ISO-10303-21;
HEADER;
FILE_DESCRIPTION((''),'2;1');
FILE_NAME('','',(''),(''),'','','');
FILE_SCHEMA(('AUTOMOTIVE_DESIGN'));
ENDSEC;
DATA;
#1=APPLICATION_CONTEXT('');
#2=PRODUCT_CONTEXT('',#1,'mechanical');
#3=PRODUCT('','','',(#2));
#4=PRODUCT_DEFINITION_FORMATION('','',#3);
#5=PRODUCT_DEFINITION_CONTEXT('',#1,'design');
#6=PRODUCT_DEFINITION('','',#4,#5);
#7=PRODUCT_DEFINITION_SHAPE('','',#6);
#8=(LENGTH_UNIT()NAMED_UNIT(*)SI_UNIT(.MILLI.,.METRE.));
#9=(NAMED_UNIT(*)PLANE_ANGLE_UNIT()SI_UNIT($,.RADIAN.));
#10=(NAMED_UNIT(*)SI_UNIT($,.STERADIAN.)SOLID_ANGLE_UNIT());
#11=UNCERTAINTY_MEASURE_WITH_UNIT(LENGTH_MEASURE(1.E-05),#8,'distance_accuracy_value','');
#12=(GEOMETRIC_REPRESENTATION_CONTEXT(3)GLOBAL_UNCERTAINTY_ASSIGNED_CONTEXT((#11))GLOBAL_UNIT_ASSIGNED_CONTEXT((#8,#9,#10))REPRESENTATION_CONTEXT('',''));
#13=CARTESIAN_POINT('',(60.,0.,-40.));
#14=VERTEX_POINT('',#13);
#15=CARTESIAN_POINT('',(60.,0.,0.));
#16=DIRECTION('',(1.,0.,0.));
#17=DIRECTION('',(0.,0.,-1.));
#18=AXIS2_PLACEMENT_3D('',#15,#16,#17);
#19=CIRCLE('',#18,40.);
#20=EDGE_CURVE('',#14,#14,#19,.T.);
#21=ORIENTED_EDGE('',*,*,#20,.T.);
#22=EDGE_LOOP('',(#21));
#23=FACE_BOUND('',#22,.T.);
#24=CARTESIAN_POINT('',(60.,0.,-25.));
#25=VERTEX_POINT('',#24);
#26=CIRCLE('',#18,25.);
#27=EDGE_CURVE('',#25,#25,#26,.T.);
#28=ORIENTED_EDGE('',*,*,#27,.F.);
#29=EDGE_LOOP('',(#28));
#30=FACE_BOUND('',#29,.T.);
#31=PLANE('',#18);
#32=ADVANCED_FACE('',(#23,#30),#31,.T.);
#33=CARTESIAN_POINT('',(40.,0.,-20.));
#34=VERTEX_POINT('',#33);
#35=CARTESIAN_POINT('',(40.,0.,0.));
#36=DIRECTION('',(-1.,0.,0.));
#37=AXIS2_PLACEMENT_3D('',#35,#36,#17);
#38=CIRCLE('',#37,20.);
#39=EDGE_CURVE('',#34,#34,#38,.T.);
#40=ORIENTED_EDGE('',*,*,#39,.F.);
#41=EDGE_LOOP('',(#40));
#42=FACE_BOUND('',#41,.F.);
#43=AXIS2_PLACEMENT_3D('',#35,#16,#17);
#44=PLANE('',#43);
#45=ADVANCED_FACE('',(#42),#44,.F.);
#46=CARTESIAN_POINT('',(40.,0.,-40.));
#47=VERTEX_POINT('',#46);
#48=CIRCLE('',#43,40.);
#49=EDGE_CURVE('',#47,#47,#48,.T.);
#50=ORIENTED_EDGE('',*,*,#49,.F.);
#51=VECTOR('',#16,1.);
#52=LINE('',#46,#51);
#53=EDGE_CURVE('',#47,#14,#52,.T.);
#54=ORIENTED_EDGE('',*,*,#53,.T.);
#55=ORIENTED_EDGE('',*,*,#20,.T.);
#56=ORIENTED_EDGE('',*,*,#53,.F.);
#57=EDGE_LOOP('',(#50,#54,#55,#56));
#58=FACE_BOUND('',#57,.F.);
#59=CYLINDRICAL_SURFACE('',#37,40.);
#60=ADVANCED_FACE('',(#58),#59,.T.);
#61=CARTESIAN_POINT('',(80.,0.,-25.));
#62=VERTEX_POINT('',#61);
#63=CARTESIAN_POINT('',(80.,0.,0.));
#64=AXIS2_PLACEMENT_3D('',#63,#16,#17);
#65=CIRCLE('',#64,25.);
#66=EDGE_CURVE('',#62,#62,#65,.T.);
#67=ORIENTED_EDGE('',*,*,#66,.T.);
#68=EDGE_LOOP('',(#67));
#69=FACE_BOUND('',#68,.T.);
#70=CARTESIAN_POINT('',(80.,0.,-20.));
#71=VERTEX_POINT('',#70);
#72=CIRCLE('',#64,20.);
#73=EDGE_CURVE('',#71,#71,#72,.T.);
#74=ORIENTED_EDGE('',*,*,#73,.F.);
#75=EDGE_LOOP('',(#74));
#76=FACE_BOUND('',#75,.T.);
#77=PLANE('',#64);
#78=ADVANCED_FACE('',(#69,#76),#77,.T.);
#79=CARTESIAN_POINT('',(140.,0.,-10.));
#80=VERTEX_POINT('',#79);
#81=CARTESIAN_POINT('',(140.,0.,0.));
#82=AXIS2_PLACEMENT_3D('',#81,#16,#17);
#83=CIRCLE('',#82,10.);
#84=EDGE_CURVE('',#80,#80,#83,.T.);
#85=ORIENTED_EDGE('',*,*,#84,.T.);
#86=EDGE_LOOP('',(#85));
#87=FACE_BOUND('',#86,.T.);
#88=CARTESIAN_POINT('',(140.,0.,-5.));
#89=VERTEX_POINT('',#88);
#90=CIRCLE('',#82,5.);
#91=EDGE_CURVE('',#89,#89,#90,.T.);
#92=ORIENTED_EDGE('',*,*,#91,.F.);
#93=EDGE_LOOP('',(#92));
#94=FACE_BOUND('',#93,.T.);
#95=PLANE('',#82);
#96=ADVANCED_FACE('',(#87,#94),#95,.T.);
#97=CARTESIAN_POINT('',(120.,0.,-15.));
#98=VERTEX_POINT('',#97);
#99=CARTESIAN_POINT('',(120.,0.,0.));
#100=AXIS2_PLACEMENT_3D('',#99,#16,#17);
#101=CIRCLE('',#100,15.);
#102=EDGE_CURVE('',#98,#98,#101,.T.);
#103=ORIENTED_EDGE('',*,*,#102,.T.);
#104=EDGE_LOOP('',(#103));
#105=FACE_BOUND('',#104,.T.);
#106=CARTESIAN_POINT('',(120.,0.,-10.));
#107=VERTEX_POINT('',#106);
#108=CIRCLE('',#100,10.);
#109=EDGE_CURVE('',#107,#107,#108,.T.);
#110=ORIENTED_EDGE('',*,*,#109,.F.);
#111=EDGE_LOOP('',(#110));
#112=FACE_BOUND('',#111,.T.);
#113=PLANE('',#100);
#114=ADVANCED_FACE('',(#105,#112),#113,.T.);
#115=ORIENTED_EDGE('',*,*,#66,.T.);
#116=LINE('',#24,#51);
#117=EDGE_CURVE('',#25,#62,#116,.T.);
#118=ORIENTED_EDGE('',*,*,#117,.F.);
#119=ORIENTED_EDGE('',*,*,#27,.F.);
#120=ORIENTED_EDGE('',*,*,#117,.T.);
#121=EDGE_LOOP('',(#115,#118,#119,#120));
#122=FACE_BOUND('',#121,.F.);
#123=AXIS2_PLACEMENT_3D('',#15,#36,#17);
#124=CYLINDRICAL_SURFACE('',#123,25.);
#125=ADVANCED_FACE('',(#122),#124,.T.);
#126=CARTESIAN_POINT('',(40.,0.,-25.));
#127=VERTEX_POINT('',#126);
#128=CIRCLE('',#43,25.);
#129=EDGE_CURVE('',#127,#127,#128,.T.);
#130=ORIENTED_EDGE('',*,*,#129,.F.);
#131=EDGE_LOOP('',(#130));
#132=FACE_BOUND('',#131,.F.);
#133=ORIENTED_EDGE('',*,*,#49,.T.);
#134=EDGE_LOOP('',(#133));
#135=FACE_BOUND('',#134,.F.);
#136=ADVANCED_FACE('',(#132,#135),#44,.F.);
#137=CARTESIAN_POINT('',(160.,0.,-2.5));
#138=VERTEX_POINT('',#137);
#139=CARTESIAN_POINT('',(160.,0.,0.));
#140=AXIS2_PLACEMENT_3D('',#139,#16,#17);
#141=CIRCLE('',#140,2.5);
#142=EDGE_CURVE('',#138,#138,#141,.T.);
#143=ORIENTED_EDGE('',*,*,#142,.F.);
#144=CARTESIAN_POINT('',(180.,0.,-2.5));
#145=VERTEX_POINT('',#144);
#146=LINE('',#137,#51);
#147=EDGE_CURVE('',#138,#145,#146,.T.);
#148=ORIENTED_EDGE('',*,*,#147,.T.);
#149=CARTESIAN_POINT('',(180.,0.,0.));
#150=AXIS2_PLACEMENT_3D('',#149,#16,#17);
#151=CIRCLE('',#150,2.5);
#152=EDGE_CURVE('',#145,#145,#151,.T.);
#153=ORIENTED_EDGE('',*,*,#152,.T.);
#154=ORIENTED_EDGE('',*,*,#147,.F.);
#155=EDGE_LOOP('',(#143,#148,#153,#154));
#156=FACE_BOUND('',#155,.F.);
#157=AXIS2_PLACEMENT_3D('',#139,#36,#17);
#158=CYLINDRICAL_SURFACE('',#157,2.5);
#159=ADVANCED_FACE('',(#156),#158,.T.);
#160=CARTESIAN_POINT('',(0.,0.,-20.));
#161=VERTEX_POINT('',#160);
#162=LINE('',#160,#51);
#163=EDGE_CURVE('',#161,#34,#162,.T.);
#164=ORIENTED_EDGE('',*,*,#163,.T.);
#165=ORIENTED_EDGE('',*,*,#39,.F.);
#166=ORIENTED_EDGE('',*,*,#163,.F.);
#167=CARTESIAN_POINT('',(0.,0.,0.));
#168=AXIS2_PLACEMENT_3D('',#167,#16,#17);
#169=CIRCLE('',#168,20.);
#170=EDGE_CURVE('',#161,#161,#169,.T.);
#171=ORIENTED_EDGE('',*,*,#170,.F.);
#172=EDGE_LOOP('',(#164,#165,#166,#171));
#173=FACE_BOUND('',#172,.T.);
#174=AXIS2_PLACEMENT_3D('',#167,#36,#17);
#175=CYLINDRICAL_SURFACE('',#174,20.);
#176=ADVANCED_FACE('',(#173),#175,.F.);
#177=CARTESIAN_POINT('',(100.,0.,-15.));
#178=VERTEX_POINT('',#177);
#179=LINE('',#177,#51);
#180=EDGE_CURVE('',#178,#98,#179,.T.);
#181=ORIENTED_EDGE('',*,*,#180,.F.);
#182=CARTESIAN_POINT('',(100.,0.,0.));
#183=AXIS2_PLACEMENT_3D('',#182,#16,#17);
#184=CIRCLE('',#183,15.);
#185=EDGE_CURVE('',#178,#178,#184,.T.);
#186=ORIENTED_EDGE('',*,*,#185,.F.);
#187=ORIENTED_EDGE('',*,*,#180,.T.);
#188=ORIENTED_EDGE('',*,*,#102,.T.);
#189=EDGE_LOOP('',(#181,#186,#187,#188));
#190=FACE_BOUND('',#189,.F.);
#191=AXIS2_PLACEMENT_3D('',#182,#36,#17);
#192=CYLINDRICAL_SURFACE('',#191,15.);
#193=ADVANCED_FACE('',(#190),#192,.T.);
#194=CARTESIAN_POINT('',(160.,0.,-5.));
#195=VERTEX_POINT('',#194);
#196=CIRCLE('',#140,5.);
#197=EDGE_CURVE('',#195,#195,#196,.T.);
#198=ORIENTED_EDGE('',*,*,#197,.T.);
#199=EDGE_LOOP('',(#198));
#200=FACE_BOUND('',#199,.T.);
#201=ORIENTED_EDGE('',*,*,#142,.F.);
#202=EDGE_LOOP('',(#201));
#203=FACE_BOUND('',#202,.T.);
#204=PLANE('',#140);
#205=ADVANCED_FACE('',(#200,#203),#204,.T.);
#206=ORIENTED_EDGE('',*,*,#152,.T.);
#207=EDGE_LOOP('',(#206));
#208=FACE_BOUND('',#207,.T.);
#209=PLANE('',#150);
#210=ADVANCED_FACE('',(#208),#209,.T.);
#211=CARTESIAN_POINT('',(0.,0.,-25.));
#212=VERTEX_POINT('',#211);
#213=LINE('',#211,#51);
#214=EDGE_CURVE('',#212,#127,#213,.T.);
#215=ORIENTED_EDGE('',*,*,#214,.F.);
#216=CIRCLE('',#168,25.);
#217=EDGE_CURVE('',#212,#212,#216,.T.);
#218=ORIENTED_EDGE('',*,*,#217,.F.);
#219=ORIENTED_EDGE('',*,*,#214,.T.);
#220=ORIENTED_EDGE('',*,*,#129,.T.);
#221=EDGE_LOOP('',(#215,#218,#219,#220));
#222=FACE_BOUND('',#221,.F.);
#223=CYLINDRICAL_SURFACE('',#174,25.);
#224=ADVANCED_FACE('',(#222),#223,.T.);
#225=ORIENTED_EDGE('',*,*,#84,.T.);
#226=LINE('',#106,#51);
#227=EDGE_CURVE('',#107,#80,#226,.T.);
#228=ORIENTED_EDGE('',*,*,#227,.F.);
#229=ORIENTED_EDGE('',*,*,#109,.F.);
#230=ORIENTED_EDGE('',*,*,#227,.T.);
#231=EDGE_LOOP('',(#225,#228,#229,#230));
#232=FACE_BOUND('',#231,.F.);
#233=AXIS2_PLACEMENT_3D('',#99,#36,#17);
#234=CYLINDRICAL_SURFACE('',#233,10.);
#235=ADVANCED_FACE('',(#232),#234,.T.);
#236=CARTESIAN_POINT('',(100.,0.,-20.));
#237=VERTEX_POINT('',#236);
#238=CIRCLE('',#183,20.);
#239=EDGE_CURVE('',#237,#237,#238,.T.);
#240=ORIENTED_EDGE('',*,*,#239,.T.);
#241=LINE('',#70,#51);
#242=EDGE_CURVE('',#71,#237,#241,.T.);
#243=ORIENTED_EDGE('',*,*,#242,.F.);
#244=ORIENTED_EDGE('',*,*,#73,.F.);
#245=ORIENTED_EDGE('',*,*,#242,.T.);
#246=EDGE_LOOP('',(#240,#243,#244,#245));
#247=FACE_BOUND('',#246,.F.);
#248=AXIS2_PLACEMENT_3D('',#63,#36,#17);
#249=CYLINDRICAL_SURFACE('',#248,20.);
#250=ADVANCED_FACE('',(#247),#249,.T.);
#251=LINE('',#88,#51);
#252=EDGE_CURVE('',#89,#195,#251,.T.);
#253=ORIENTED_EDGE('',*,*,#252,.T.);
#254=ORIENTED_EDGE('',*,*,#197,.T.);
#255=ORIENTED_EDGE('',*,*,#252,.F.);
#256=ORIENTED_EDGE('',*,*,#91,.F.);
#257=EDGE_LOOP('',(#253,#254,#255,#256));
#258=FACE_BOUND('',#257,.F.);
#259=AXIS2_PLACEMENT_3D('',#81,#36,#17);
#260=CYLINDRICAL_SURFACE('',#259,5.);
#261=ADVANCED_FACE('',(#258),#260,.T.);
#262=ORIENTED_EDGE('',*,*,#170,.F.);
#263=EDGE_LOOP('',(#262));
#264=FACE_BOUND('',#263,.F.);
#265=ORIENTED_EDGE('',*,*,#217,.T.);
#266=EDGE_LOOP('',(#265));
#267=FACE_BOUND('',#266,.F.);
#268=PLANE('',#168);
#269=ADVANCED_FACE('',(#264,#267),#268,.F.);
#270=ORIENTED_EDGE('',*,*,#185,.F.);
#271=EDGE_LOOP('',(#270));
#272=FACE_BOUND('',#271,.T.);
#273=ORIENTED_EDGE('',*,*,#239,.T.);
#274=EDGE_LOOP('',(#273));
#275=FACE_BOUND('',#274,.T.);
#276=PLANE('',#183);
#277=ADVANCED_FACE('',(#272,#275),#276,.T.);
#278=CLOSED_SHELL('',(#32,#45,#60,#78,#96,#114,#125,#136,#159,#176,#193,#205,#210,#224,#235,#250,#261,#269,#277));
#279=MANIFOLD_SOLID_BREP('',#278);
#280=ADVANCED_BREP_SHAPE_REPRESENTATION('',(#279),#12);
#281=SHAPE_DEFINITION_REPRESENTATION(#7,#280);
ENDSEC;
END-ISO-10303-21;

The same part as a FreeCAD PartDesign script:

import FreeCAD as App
import Part
import Sketcher
from FreeCAD import Vector

doc = App.newDocument("Part")
body = doc.addObject("PartDesign::Body", "Body")

sketch1 = body.newObject("Sketcher::SketchObject", "Sketch")
sketch1.AttachmentSupport = (doc.getObject("YZ_Plane"), [""])
sketch1.MapMode = "FlatFace"
sketch1.addGeometry(Part.Circle(Vector(0, 0, 0), Vector(0, 0, 1), 25), False)
sketch1.addConstraint(Sketcher.Constraint("Coincident", 0, 3, -1, 1))
sketch1.addConstraint(Sketcher.Constraint("Diameter", 0, 50.0))
pad1 = body.newObject("PartDesign::Pad", "Pad")
pad1.Profile = sketch1
pad1.Length = 40

sketch2 = body.newObject("Sketcher::SketchObject", "Sketch001")
sketch2.AttachmentSupport = (doc.getObject("YZ_Plane"), [""])
sketch2.MapMode = "FlatFace"
sketch2.addGeometry(Part.Circle(Vector(0, 0, 0), Vector(0, 0, 1), 20), False)
sketch2.addConstraint(Sketcher.Constraint("Coincident", 0, 3, -1, 1))
sketch2.addConstraint(Sketcher.Constraint("Diameter", 0, 40.0))
pocket1 = body.newObject("PartDesign::Pocket", "Pocket")
pocket1.Profile = sketch2
pocket1.Length = 70
pocket1.Reversed = True

sketch3 = body.newObject("Sketcher::SketchObject", "Sketch002")
sketch3.AttachmentSupport = (doc.getObject("YZ_Plane"), [""])
sketch3.MapMode = "FlatFace"
sketch3.AttachmentOffset = App.Placement(Vector(0, 0, 40), App.Rotation())
sketch3.addGeometry(Part.Circle(Vector(0, 0, 0), Vector(0, 0, 1), 40), False)
sketch3.addConstraint(Sketcher.Constraint("Coincident", 0, 3, -1, 1))
sketch3.addConstraint(Sketcher.Constraint("Diameter", 0, 80.0))
pad2 = body.newObject("PartDesign::Pad", "Pad001")
pad2.Profile = sketch3
pad2.Length = 20

sketch4 = body.newObject("Sketcher::SketchObject", "Sketch003")
sketch4.AttachmentSupport = (doc.getObject("YZ_Plane"), [""])
sketch4.MapMode = "FlatFace"
sketch4.AttachmentOffset = App.Placement(Vector(0, 0, 60), App.Rotation())
sketch4.addGeometry(Part.Circle(Vector(0, 0, 0), Vector(0, 0, 1), 25), False)
sketch4.addConstraint(Sketcher.Constraint("Coincident", 0, 3, -1, 1))
sketch4.addConstraint(Sketcher.Constraint("Diameter", 0, 50.0))
pad3 = body.newObject("PartDesign::Pad", "Pad002")
pad3.Profile = sketch4
pad3.Length = 20

sketch5 = body.newObject("Sketcher::SketchObject", "Sketch004")
sketch5.AttachmentSupport = (doc.getObject("YZ_Plane"), [""])
sketch5.MapMode = "FlatFace"
sketch5.AttachmentOffset = App.Placement(Vector(0, 0, 80), App.Rotation())
sketch5.addGeometry(Part.Circle(Vector(0, 0, 0), Vector(0, 0, 1), 20), False)
sketch5.addConstraint(Sketcher.Constraint("Coincident", 0, 3, -1, 1))
sketch5.addConstraint(Sketcher.Constraint("Diameter", 0, 40.0))
pad4 = body.newObject("PartDesign::Pad", "Pad003")
pad4.Profile = sketch5
pad4.Length = 20

sketch6 = body.newObject("Sketcher::SketchObject", "Sketch005")
sketch6.AttachmentSupport = (doc.getObject("YZ_Plane"), [""])
sketch6.MapMode = "FlatFace"
sketch6.AttachmentOffset = App.Placement(Vector(0, 0, 100), App.Rotation())
sketch6.addGeometry(Part.Circle(Vector(0, 0, 0), Vector(0, 0, 1), 15), False)
sketch6.addConstraint(Sketcher.Constraint("Coincident", 0, 3, -1, 1))
sketch6.addConstraint(Sketcher.Constraint("Diameter", 0, 30.0))
pad5 = body.newObject("PartDesign::Pad", "Pad004")
pad5.Profile = sketch6
pad5.Length = 20

sketch7 = body.newObject("Sketcher::SketchObject", "Sketch006")
sketch7.AttachmentSupport = (doc.getObject("YZ_Plane"), [""])
sketch7.MapMode = "FlatFace"
sketch7.AttachmentOffset = App.Placement(Vector(0, 0, 120), App.Rotation())
sketch7.addGeometry(Part.Circle(Vector(0, 0, 0), Vector(0, 0, 1), 10), False)
sketch7.addConstraint(Sketcher.Constraint("Coincident", 0, 3, -1, 1))
sketch7.addConstraint(Sketcher.Constraint("Diameter", 0, 20.0))
pad6 = body.newObject("PartDesign::Pad", "Pad005")
pad6.Profile = sketch7
pad6.Length = 20
body2 = doc.addObject("PartDesign::Body", "Body001")

sketch8 = body2.newObject("Sketcher::SketchObject", "Sketch007")
sketch8.AttachmentSupport = (doc.getObject("YZ_Plane001"), [""])
sketch8.MapMode = "FlatFace"
sketch8.AttachmentOffset = App.Placement(Vector(0, 0, 160), App.Rotation())
sketch8.addGeometry(Part.Circle(Vector(0, 0, 0), Vector(0, 0, 1), 2.5), False)
sketch8.addConstraint(Sketcher.Constraint("Coincident", 0, 3, -1, 1))
sketch8.addConstraint(Sketcher.Constraint("Diameter", 0, 5.0))
pad7 = body2.newObject("PartDesign::Pad", "Pad006")
pad7.Profile = sketch8
pad7.Length = 20
body.AllowCompound = True
doc.recompute()

boolean = body.newObject("PartDesign::Boolean", "Boolean")
boolean.Type = "Fuse"
boolean.addObjects([body2])

sketch9 = body.newObject("Sketcher::SketchObject", "Sketch008")
sketch9.AttachmentSupport = (doc.getObject("YZ_Plane"), [""])
sketch9.MapMode = "FlatFace"
sketch9.AttachmentOffset = App.Placement(Vector(0, 0, 140), App.Rotation())
sketch9.addGeometry(Part.Circle(Vector(0, 0, 0), Vector(0, 0, 1), 5), False)
sketch9.addConstraint(Sketcher.Constraint("Coincident", 0, 3, -1, 1))
sketch9.addConstraint(Sketcher.Constraint("Diameter", 0, 10.0))
pad8 = body.newObject("PartDesign::Pad", "Pad007")
pad8.Profile = sketch9
pad8.Length = 20

doc.recompute()
